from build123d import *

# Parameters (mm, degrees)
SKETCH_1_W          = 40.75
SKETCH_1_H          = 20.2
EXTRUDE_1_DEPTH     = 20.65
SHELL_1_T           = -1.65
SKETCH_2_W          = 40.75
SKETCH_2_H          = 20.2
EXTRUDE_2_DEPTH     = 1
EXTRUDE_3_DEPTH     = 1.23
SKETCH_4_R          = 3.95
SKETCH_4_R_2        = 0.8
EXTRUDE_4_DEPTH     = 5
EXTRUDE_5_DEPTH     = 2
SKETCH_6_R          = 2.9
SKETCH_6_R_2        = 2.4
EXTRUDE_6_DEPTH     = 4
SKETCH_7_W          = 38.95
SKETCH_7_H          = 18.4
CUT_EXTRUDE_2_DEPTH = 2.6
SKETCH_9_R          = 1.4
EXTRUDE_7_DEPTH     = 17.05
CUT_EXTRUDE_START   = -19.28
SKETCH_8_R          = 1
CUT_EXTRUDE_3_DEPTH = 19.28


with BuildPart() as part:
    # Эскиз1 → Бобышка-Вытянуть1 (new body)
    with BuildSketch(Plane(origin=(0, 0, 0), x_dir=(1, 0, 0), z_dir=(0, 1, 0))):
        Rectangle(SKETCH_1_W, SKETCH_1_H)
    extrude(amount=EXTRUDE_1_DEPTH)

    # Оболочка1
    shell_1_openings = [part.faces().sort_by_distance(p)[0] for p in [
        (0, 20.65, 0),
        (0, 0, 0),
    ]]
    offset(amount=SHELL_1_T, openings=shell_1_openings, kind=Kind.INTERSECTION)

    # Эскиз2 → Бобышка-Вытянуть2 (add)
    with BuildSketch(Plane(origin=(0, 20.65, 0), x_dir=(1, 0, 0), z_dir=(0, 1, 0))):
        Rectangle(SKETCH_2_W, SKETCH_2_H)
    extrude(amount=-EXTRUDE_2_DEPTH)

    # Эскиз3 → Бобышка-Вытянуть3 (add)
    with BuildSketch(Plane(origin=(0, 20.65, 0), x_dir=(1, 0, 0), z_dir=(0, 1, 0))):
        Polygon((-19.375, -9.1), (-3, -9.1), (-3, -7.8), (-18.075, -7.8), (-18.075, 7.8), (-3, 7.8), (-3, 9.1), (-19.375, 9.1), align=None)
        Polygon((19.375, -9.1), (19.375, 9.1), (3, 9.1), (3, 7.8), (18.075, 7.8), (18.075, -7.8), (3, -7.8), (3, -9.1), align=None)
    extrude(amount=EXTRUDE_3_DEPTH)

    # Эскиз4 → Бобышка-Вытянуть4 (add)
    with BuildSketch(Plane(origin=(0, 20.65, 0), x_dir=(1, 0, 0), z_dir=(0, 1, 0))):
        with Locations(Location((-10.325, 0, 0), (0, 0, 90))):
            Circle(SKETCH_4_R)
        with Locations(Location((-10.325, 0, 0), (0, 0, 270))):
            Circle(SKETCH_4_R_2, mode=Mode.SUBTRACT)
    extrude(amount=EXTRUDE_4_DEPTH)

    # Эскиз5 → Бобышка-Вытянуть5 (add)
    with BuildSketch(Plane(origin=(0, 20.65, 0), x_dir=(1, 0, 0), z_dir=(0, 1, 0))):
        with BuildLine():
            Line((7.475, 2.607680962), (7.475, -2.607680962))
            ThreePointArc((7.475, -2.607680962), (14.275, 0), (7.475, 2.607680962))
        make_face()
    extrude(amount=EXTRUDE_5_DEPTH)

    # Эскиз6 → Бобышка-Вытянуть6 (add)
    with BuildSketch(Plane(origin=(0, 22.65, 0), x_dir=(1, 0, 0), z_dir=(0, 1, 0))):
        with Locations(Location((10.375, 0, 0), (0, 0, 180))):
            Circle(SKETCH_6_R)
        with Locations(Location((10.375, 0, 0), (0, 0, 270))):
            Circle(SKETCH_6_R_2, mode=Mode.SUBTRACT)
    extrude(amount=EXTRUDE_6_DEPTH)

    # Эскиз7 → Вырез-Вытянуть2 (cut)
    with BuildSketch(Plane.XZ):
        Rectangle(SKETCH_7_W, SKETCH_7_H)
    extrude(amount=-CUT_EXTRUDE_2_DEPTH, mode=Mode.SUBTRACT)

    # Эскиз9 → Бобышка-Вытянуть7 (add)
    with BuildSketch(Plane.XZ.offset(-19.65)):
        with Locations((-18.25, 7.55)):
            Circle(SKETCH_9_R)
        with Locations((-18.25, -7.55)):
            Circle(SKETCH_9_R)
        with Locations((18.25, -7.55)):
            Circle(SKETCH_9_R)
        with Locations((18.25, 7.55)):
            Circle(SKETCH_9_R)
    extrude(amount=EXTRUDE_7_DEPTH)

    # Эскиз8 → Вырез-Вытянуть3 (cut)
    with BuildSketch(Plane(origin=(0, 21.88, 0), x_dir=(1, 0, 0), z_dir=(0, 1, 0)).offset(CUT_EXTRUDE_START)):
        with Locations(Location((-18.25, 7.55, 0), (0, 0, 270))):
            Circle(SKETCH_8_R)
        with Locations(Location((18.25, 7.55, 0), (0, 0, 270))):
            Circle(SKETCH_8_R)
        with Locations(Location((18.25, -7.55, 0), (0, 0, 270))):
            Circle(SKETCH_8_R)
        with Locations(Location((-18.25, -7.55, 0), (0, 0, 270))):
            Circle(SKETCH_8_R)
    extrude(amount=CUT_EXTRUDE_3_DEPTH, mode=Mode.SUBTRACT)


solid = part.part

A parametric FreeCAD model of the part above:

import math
import FreeCAD as App
import Part
import Sketcher
Q = App.Units.Quantity


def faces_at(feature, points):
    """Names of the faces that lie closest to the given points."""
    faces = feature.Shape.Faces
    near = lambda p: min(range(len(faces)), key=lambda i: faces[i].distToShape(Part.Vertex(*p))[0])
    return sorted({f"Face{near(p) + 1}" for p in points})

doc = App.newDocument("Part")
body = doc.addObject("PartDesign::Body", "Body")

sketch1 = doc.addObject("Sketcher::SketchObject", "Sketch")
body.addObject(sketch1)
sketch1.AttachmentSupport = (doc.XZ_Plane, [""])
sketch1.MapMode = "FlatFace"
sketch1.addGeometry([
    Part.LineSegment(App.Vector(-20, -10, 0), App.Vector(-20, 10, 0)),
    Part.LineSegment(App.Vector(-20, 10, 0), App.Vector(20, 10, 0)),
    Part.LineSegment(App.Vector(20, 10, 0), App.Vector(20, -10, 0)),
    Part.LineSegment(App.Vector(20, -10, 0), App.Vector(-20, -10, 0)),
], False)
sketch1.addConstraint([
    Sketcher.Constraint("Coincident", 0, 2, 1, 1),
    Sketcher.Constraint("Coincident", 1, 2, 2, 1),
    Sketcher.Constraint("Coincident", 2, 2, 3, 1),
    Sketcher.Constraint("Coincident", 3, 2, 0, 1),
    Sketcher.Constraint("Vertical", 0),
    Sketcher.Constraint("Horizontal", 1),
    Sketcher.Constraint("Vertical", 2),
    Sketcher.Constraint("Horizontal", 3),
    Sketcher.Constraint("Symmetric", 0, 2, 2, 2, -1, 1),
    Sketcher.Constraint("DistanceY", 0, 1, 0, 2, Q("20.2 mm")),
    Sketcher.Constraint("DistanceX", 1, 1, 1, 2, Q("40.75 mm")),
])
pad1 = doc.addObject("PartDesign::Pad", "Pad")
body.addObject(pad1)
pad1.Profile = sketch1
pad1.Length = 20.65
pad1.Reversed = True
doc.recompute()

thickness = doc.addObject("PartDesign::Thickness", "Thickness")
body.addObject(thickness)
thickness.Base = (pad1, faces_at(pad1, [(0, 20.65, 0), (0, 0, 0)]))
thickness.Value = 1.65
thickness.Reversed = True
thickness.Join = "Intersection"

sketch2 = doc.addObject("Sketcher::SketchObject", "Sketch001")
body.addObject(sketch2)
sketch2.AttachmentSupport = (doc.XZ_Plane, [""])
sketch2.MapMode = "FlatFace"
sketch2.AttachmentOffset = App.Placement(App.Vector(0, 0, -20.65), App.Rotation())
sketch2.addGeometry([
    Part.LineSegment(App.Vector(-20, -10, 0), App.Vector(-20, 10, 0)),
    Part.LineSegment(App.Vector(-20, 10, 0), App.Vector(20, 10, 0)),
    Part.LineSegment(App.Vector(20, 10, 0), App.Vector(20, -10, 0)),
    Part.LineSegment(App.Vector(20, -10, 0), App.Vector(-20, -10, 0)),
], False)
sketch2.addConstraint([
    Sketcher.Constraint("Coincident", 0, 2, 1, 1),
    Sketcher.Constraint("Coincident", 1, 2, 2, 1),
    Sketcher.Constraint("Coincident", 2, 2, 3, 1),
    Sketcher.Constraint("Coincident", 3, 2, 0, 1),
    Sketcher.Constraint("Vertical", 0),
    Sketcher.Constraint("Horizontal", 1),
    Sketcher.Constraint("Vertical", 2),
    Sketcher.Constraint("Horizontal", 3),
    Sketcher.Constraint("Symmetric", 0, 2, 2, 2, -1, 1),
    Sketcher.Constraint("DistanceY", 0, 1, 0, 2, Q("20.2 mm")),
    Sketcher.Constraint("DistanceX", 1, 1, 1, 2, Q("40.75 mm")),
])
pad2 = doc.addObject("PartDesign::Pad", "Pad001")
body.addObject(pad2)
pad2.Profile = sketch2
pad2.Length = 1

sketch3 = doc.addObject("Sketcher::SketchObject", "Sketch002")
body.addObject(sketch3)
sketch3.AttachmentSupport = (doc.XZ_Plane, [""])
sketch3.MapMode = "FlatFace"
sketch3.AttachmentOffset = App.Placement(App.Vector(0, 0, -20.65), App.Rotation())
sketch3.addGeometry([
    Part.LineSegment(App.Vector(-19.4, 9.1, 0), App.Vector(-3, 9.1, 0)),
    Part.LineSegment(App.Vector(-3, 9.1, 0), App.Vector(-3, 7.8, 0)),
    Part.LineSegment(App.Vector(-3, 7.8, 0), App.Vector(-18.1, 7.8, 0)),
    Part.LineSegment(App.Vector(-18.1, 7.8, 0), App.Vector(-18.1, -7.8, 0)),
    Part.LineSegment(App.Vector(-18.1, -7.8, 0), App.Vector(-3, -7.8, 0)),
    Part.LineSegment(App.Vector(-3, -7.8, 0), App.Vector(-3, -9.1, 0)),
    Part.LineSegment(App.Vector(-3, -9.1, 0), App.Vector(-19.4, -9.1, 0)),
    Part.LineSegment(App.Vector(-19.4, -9.1, 0), App.Vector(-19.4, 9.1, 0)),
    Part.LineSegment(App.Vector(19.4, 9.1, 0), App.Vector(19.4, -9.1, 0)),
    Part.LineSegment(App.Vector(19.4, -9.1, 0), App.Vector(3, -9.1, 0)),
    Part.LineSegment(App.Vector(3, -9.1, 0), App.Vector(3, -7.8, 0)),
    Part.LineSegment(App.Vector(3, -7.8, 0), App.Vector(18.1, -7.8, 0)),
    Part.LineSegment(App.Vector(18.1, -7.8, 0), App.Vector(18.1, 7.8, 0)),
    Part.LineSegment(App.Vector(18.1, 7.8, 0), App.Vector(3, 7.8, 0)),
    Part.LineSegment(App.Vector(3, 7.8, 0), App.Vector(3, 9.1, 0)),
    Part.LineSegment(App.Vector(3, 9.1, 0), App.Vector(19.4, 9.1, 0)),
], False)
sketch3.addConstraint([
    Sketcher.Constraint("Coincident", 0, 2, 1, 1),
    Sketcher.Constraint("Coincident", 1, 2, 2, 1),
    Sketcher.Constraint("Coincident", 2, 2, 3, 1),
    Sketcher.Constraint("Coincident", 3, 2, 4, 1),
    Sketcher.Constraint("Coincident", 4, 2, 5, 1),
    Sketcher.Constraint("Coincident", 5, 2, 6, 1),
    Sketcher.Constraint("Coincident", 6, 2, 7, 1),
    Sketcher.Constraint("Coincident", 7, 2, 0, 1),
    Sketcher.Constraint("Coincident", 8, 2, 9, 1),
    Sketcher.Constraint("Coincident", 9, 2, 10, 1),
    Sketcher.Constraint("Coincident", 10, 2, 11, 1),
    Sketcher.Constraint("Coincident", 11, 2, 12, 1),
    Sketcher.Constraint("Coincident", 12, 2, 13, 1),
    Sketcher.Constraint("Coincident", 13, 2, 14, 1),
    Sketcher.Constraint("Coincident", 14, 2, 15, 1),
    Sketcher.Constraint("Coincident", 15, 2, 8, 1),
    Sketcher.Constraint("Horizontal", 0),
    Sketcher.Constraint("Vertical", 1),
    Sketcher.Constraint("Horizontal", 2),
    Sketcher.Constraint("Vertical", 3),
    Sketcher.Constraint("Horizontal", 4),
    Sketcher.Constraint("Vertical", 5),
    Sketcher.Constraint("Horizontal", 6),
    Sketcher.Constraint("Vertical", 7),
    Sketcher.Constraint("Vertical", 8),
    Sketcher.Constraint("Horizontal", 9),
    Sketcher.Constraint("Vertical", 10),
    Sketcher.Constraint("Horizontal", 11),
    Sketcher.Constraint("Vertical", 12),
    Sketcher.Constraint("Horizontal", 13),
    Sketcher.Constraint("Vertical", 14),
    Sketcher.Constraint("Horizontal", 15),
    Sketcher.Constraint("Symmetric", 7, 2, 8, 2, -1, 1),
    Sketcher.Constraint("Symmetric", 1, 2, 10, 2, -1, 1),
    Sketcher.Constraint("Symmetric", 3, 2, 12, 2, -1, 1),
    Sketcher.Constraint("Symmetric", 5, 2, 14, 2, -1, 1),
    Sketcher.Constraint("Symmetric", 5, 2, 9, 2, -2),
    Sketcher.Constraint("Horizontal", 4, 2, 10, 2),
    Sketcher.Constraint("DistanceY", 1, 2, 1, 1, Q("1.3 mm")),
    Sketcher.Constraint("DistanceY", 3, 2, 3, 1, Q("15.6 mm")),
    Sketcher.Constraint("DistanceX", 0, 2, -1, 1, Q("3 mm")),
    Sketcher.Constraint("DistanceX", 6, 2, 3, 2, Q("1.3 mm")),
    Sketcher.Constraint("DistanceX", 0, 1, 0, 2, Q("16.375 mm")),
])
pad3 = doc.addObject("PartDesign::Pad", "Pad002")
body.addObject(pad3)
pad3.Profile = sketch3
pad3.Length = 1.23
pad3.Reversed = True

sketch4 = doc.addObject("Sketcher::SketchObject", "Sketch003")
body.addObject(sketch4)
sketch4.AttachmentSupport = (doc.XZ_Plane, [""])
sketch4.MapMode = "FlatFace"
sketch4.AttachmentOffset = App.Placement(App.Vector(0, 0, -20.65), App.Rotation())
sketch4.addGeometry([
    Part.Circle(App.Vector(-10.3, 0, 0), App.Vector(0, 0, 1), 4),
    Part.Circle(App.Vector(-10.3, 0, 0), App.Vector(0, 0, 1), 0.8),
], False)
sketch4.addConstraint([
    Sketcher.Constraint("Coincident", 1, 3, 0, 3),
    Sketcher.Constraint("PointOnObject", 0, 3, -1),
    Sketcher.Constraint("Diameter", 0, Q("7.9 mm")),
    Sketcher.Constraint("Diameter", 1, Q("1.6 mm")),
    Sketcher.Constraint("DistanceX", 0, 3, -1, 1, Q("10.325 mm")),
])
pad4 = doc.addObject("PartDesign::Pad", "Pad003")
body.addObject(pad4)
pad4.Profile = sketch4
pad4.Length = 5
pad4.Reversed = True

sketch5 = doc.addObject("Sketcher::SketchObject", "Sketch004")
body.addObject(sketch5)
sketch5.AttachmentSupport = (doc.XZ_Plane, [""])
sketch5.MapMode = "FlatFace"
sketch5.AttachmentOffset = App.Placement(App.Vector(0, 0, -20.65), App.Rotation())
sketch5.addGeometry([
    Part.LineSegment(App.Vector(7.5, -2.6, 0), App.Vector(7.5, 2.6, 0)),
    Part.ArcOfCircle(Part.Circle(App.Vector(10.4, 0, 0), App.Vector(0, 0, 1), 3.9), math.radians(-138), math.radians(138)),
], False)
sketch5.addConstraint([
    Sketcher.Constraint("Coincident", 0, 1, 1, 1),
    Sketcher.Constraint("Coincident", 1, 2, 0, 2),
    Sketcher.Constraint("Vertical", 0),
    Sketcher.Constraint("PointOnObject", 1, 3, -1),
    Sketcher.Constraint("Radius", 1, Q("3.9 mm")),
    Sketcher.Constraint("DistanceX", 0, 1, 1, 3, Q("2.9 mm")),
    Sketcher.Constraint("DistanceX", -1, 1, 1, 3, Q("10.375 mm")),
])
pad5 = doc.addObject("PartDesign::Pad", "Pad004")
body.addObject(pad5)
pad5.Profile = sketch5
pad5.Length = 2
pad5.Reversed = True

sketch6 = doc.addObject("Sketcher::SketchObject", "Sketch005")
body.addObject(sketch6)
sketch6.AttachmentSupport = (doc.XZ_Plane, [""])
sketch6.MapMode = "FlatFace"
sketch6.AttachmentOffset = App.Placement(App.Vector(0, 0, -22.65), App.Rotation())
sketch6.addGeometry([
    Part.Circle(App.Vector(10.4, 0, 0), App.Vector(0, 0, 1), 2.9),
    Part.Circle(App.Vector(10.4, 0, 0), App.Vector(0, 0, 1), 2.4),
], False)
sketch6.addConstraint([
    Sketcher.Constraint("Coincident", 1, 3, 0, 3),
    Sketcher.Constraint("PointOnObject", 0, 3, -1),
    Sketcher.Constraint("Diameter", 0, Q("5.8 mm")),
    Sketcher.Constraint("Diameter", 1, Q("4.8 mm")),
    Sketcher.Constraint("DistanceX", -1, 1, 0, 3, Q("10.375 mm")),
])
pad6 = doc.addObject("PartDesign::Pad", "Pad005")
body.addObject(pad6)
pad6.Profile = sketch6
pad6.Length = 4
pad6.Reversed = True

sketch7 = doc.addObject("Sketcher::SketchObject", "Sketch006")
body.addObject(sketch7)
sketch7.AttachmentSupport = (doc.XZ_Plane, [""])
sketch7.MapMode = "FlatFace"
sketch7.addGeometry([
    Part.LineSegment(App.Vector(-19, 9, 0), App.Vector(-19, -9, 0)),
    Part.LineSegment(App.Vector(-19, -9, 0), App.Vector(19, -9, 0)),
    Part.LineSegment(App.Vector(19, -9, 0), App.Vector(19, 9, 0)),
    Part.LineSegment(App.Vector(19, 9, 0), App.Vector(-19, 9, 0)),
], False)
sketch7.addConstraint([
    Sketcher.Constraint("Coincident", 0, 2, 1, 1),
    Sketcher.Constraint("Coincident", 1, 2, 2, 1),
    Sketcher.Constraint("Coincident", 2, 2, 3, 1),
    Sketcher.Constraint("Coincident", 3, 2, 0, 1),
    Sketcher.Constraint("Vertical", 0),
    Sketcher.Constraint("Horizontal", 1),
    Sketcher.Constraint("Vertical", 2),
    Sketcher.Constraint("Horizontal", 3),
    Sketcher.Constraint("Symmetric", 0, 2, 2, 2, -1, 1),
    Sketcher.Constraint("DistanceY", 0, 2, 0, 1, Q("18.4 mm")),
    Sketcher.Constraint("DistanceX", 1, 1, 1, 2, Q("38.95 mm")),
])
pocket1 = doc.addObject("PartDesign::Pocket", "Pocket")
body.addObject(pocket1)
pocket1.Profile = sketch7
pocket1.Length = 2.6

sketch8 = doc.addObject("Sketcher::SketchObject", "Sketch007")
body.addObject(sketch8)
sketch8.AttachmentSupport = (doc.XZ_Plane, [""])
sketch8.MapMode = "FlatFace"
sketch8.AttachmentOffset = App.Placement(App.Vector(0, 0, -19.65), App.Rotation())
sketch8.addGeometry([
    Part.Circle(App.Vector(-18.2, 7.5, 0), App.Vector(0, 0, 1), 1.4),
    Part.Circle(App.Vector(-18.2, -7.5, 0), App.Vector(0, 0, 1), 1.4),
    Part.Circle(App.Vector(18.2, -7.5, 0), App.Vector(0, 0, 1), 1.4),
    Part.Circle(App.Vector(18.2, 7.5, 0), App.Vector(0, 0, 1), 1.4),
], False)
sketch8.addConstraint([
    Sketcher.Constraint("Equal", 0, 1),
    Sketcher.Constraint("Equal", 1, 2),
    Sketcher.Constraint("Equal", 2, 3),
    Sketcher.Constraint("Symmetric", 0, 3, 2, 3, -1, 1),
    Sketcher.Constraint("Symmetric", 1, 3, 3, 3, -1, 1),
    Sketcher.Constraint("Symmetric", 1, 3, 2, 3, -2),
    Sketcher.Constraint("Diameter", 0, Q("2.8 mm")),
    Sketcher.Constraint("DistanceY", 1, 3, 0, 3, Q("15.1 mm")),
    Sketcher.Constraint("DistanceX", 1, 3, 2, 3, Q("36.5 mm")),
])
pad7 = doc.addObject("PartDesign::Pad", "Pad006")
body.addObject(pad7)
pad7.Profile = sketch8
pad7.Length = 17.05

sketch9 = doc.addObject("Sketcher::SketchObject", "Sketch008")
body.addObject(sketch9)
sketch9.AttachmentSupport = (doc.XZ_Plane, [""])
sketch9.MapMode = "FlatFace"
sketch9.AttachmentOffset = App.Placement(App.Vector(0, 0, -2.6), App.Rotation())
sketch9.addGeometry([
    Part.Circle(App.Vector(-18.2, -7.5, 0), App.Vector(0, 0, 1), 1),
    Part.Circle(App.Vector(18.2, -7.5, 0), App.Vector(0, 0, 1), 1),
    Part.Circle(App.Vector(18.2, 7.5, 0), App.Vector(0, 0, 1), 1),
    Part.Circle(App.Vector(-18.2, 7.5, 0), App.Vector(0, 0, 1), 1),
], False)
sketch9.addConstraint([
    Sketcher.Constraint("Equal", 0, 1),
    Sketcher.Constraint("Equal", 1, 2),
    Sketcher.Constraint("Equal", 2, 3),
    Sketcher.Constraint("Symmetric", 0, 3, 2, 3, -1, 1),
    Sketcher.Constraint("Symmetric", 1, 3, 3, 3, -1, 1),
    Sketcher.Constraint("Symmetric", 0, 3, 1, 3, -2),
    Sketcher.Constraint("Diameter", 0, Q("2 mm")),
    Sketcher.Constraint("DistanceX", 0, 3, 1, 3, Q("36.5 mm")),
    Sketcher.Constraint("DistanceY", 1, 3, 2, 3, Q("15.1 mm")),
])
pocket2 = doc.addObject("PartDesign::Pocket", "Pocket001")
body.addObject(pocket2)
pocket2.Profile = sketch9
pocket2.Length = 19.28

doc.recompute()
